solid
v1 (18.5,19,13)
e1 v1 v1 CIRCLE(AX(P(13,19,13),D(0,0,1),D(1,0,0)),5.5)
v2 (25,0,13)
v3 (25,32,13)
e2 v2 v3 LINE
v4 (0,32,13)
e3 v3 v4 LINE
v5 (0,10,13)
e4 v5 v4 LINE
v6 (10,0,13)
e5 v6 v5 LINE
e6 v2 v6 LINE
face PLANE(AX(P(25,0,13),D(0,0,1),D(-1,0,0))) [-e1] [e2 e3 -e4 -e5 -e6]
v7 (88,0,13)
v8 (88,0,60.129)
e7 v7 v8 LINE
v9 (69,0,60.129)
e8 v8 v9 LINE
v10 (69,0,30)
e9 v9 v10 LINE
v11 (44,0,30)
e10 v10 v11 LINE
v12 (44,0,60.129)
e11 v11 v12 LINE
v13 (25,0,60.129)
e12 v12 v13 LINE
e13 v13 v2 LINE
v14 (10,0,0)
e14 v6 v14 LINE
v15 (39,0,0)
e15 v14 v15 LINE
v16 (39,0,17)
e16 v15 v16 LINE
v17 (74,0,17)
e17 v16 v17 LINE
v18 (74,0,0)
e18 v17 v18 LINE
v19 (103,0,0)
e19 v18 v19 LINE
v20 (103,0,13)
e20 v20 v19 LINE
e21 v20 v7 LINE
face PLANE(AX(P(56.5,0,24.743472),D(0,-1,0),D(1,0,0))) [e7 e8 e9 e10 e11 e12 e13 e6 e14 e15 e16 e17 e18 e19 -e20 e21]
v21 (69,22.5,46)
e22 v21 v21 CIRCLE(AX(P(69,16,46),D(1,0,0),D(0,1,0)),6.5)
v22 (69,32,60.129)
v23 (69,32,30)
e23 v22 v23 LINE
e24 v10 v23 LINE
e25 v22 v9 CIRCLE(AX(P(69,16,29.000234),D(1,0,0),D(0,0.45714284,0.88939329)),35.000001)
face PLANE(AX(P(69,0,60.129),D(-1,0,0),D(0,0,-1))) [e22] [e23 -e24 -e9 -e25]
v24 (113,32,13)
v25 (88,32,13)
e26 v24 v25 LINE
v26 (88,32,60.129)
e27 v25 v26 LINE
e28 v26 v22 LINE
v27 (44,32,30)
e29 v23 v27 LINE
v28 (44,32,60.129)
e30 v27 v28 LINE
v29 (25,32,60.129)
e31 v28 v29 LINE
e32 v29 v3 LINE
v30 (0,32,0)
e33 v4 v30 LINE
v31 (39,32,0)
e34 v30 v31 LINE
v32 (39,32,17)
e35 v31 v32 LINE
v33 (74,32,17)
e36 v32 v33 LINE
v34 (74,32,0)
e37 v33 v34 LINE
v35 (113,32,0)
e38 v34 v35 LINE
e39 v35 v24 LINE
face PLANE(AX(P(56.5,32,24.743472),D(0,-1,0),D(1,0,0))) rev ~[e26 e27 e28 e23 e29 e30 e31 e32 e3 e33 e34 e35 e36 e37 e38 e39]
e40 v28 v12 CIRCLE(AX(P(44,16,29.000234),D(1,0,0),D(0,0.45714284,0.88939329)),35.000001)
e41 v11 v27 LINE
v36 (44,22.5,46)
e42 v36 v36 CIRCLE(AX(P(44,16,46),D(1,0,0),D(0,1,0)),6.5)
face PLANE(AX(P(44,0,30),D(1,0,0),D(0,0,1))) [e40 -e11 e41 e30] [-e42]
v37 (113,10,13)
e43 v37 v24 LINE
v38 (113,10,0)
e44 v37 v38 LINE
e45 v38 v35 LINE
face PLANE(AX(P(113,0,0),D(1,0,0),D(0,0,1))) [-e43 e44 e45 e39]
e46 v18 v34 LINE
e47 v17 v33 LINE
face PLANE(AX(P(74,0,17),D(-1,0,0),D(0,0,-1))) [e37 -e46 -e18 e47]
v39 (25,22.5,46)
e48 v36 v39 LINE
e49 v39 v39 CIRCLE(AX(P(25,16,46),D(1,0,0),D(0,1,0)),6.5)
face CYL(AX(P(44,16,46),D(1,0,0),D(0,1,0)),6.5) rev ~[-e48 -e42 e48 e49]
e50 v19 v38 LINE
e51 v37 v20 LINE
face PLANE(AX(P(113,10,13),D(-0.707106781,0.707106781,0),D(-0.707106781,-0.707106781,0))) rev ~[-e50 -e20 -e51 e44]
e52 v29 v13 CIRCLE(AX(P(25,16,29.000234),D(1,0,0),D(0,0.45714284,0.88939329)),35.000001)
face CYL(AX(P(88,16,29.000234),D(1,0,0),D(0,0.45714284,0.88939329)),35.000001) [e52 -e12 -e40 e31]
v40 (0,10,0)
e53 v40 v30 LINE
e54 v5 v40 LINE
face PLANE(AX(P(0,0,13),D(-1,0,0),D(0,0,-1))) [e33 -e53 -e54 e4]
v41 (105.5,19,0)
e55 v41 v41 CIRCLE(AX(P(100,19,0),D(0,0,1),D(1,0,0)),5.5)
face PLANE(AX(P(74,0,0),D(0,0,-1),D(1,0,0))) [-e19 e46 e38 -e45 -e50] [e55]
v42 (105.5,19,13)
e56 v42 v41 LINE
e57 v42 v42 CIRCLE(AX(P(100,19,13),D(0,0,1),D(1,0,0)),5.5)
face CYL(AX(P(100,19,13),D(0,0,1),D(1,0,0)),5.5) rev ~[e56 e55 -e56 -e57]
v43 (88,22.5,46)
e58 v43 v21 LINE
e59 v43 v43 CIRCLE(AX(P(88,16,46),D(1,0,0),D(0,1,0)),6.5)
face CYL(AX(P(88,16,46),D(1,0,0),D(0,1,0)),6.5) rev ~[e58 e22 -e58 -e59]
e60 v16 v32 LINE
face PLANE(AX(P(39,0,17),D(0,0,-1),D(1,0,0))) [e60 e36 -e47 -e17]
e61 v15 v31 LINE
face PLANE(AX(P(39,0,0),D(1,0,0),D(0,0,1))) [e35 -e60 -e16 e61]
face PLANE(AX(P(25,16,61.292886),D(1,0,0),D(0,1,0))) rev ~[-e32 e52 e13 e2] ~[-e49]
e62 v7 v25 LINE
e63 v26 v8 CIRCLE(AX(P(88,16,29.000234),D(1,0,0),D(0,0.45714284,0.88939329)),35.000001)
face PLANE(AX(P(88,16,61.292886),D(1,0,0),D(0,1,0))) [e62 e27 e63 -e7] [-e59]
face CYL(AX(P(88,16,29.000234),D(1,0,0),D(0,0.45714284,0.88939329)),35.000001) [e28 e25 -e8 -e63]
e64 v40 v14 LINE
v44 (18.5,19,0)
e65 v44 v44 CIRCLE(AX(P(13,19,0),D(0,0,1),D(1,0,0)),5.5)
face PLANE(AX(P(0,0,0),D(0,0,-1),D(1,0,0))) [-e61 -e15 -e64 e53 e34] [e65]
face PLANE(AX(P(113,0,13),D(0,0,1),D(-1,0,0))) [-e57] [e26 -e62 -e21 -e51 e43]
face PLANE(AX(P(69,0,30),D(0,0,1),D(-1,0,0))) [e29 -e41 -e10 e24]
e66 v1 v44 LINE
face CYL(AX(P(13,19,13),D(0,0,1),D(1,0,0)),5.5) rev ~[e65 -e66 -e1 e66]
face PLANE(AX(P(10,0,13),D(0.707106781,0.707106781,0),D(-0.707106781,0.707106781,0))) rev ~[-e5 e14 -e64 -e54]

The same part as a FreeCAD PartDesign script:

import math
import FreeCAD as App
import Part
import Sketcher

V = App.Vector
Q = App.Units.Quantity

doc = App.newDocument("Part")
body = doc.addObject("PartDesign::Body", "Body")

# Sketch on XZ plane
sketch1 = doc.addObject("Sketcher::SketchObject", "Sketch")
body.addObject(sketch1)
sketch1.AttachmentSupport = (doc.XZ_Plane, [""])
sketch1.MapMode = "FlatFace"
sketch1.addGeometry(Part.LineSegment(V(44, 60.129, 0), V(25, 60.129, 0)), False)
sketch1.addGeometry(Part.LineSegment(V(25, 60.129, 0), V(25, 13, 0)), False)
sketch1.addGeometry(Part.LineSegment(V(25, 13, 0), V(0, 13, 0)), False)
sketch1.addGeometry(Part.LineSegment(V(0, 13, 0), V(0, 0, 0)), False)
sketch1.addGeometry(Part.LineSegment(V(0, 0, 0), V(39, 0, 0)), False)
sketch1.addGeometry(Part.LineSegment(V(39, 0, 0), V(39, 17, 0)), False)
sketch1.addGeometry(Part.LineSegment(V(39, 17, 0), V(74, 17, 0)), False)
sketch1.addGeometry(Part.LineSegment(V(74, 17, 0), V(74, 0, 0)), False)
sketch1.addGeometry(Part.LineSegment(V(74, 0, 0), V(113, 0, 0)), False)
sketch1.addGeometry(Part.LineSegment(V(113, 0, 0), V(113, 13, 0)), False)
sketch1.addGeometry(Part.LineSegment(V(113, 13, 0), V(88, 13, 0)), False)
sketch1.addGeometry(Part.LineSegment(V(88, 13, 0), V(88, 60.129, 0)), False)
sketch1.addGeometry(Part.LineSegment(V(88, 60.129, 0), V(69, 60.129, 0)), False)
sketch1.addGeometry(Part.LineSegment(V(69, 60.129, 0), V(69, 30, 0)), False)
sketch1.addGeometry(Part.LineSegment(V(69, 30, 0), V(44, 30, 0)), False)
sketch1.addGeometry(Part.LineSegment(V(44, 30, 0), V(44, 60.129, 0)), False)
sketch1.addConstraint(Sketcher.Constraint("Coincident", 0, 2, 1, 1))
sketch1.addConstraint(Sketcher.Constraint("Coincident", 1, 2, 2, 1))
sketch1.addConstraint(Sketcher.Constraint("Coincident", 2, 2, 3, 1))
sketch1.addConstraint(Sketcher.Constraint("Coincident", 3, 2, 4, 1))
sketch1.addConstraint(Sketcher.Constraint("Coincident", 4, 2, 5, 1))
sketch1.addConstraint(Sketcher.Constraint("Coincident", 5, 2, 6, 1))
sketch1.addConstraint(Sketcher.Constraint("Coincident", 6, 2, 7, 1))
sketch1.addConstraint(Sketcher.Constraint("Coincident", 7, 2, 8, 1))
sketch1.addConstraint(Sketcher.Constraint("Coincident", 8, 2, 9, 1))
sketch1.addConstraint(Sketcher.Constraint("Coincident", 9, 2, 10, 1))
sketch1.addConstraint(Sketcher.Constraint("Coincident", 10, 2, 11, 1))
sketch1.addConstraint(Sketcher.Constraint("Coincident", 11, 2, 12, 1))
sketch1.addConstraint(Sketcher.Constraint("Coincident", 12, 2, 13, 1))
sketch1.addConstraint(Sketcher.Constraint("Coincident", 13, 2, 14, 1))
sketch1.addConstraint(Sketcher.Constraint("Coincident", 14, 2, 15, 1))
sketch1.addConstraint(Sketcher.Constraint("Coincident", 15, 2, 0, 1))
sketch1.addConstraint(Sketcher.Constraint("Horizontal", 0))
sketch1.addConstraint(Sketcher.Constraint("Vertical", 1))
sketch1.addConstraint(Sketcher.Constraint("Horizontal", 2))
sketch1.addConstraint(Sketcher.Constraint("Vertical", 3))
sketch1.addConstraint(Sketcher.Constraint("Horizontal", 4))
sketch1.addConstraint(Sketcher.Constraint("Vertical", 5))
sketch1.addConstraint(Sketcher.Constraint("Horizontal", 6))
sketch1.addConstraint(Sketcher.Constraint("Vertical", 7))
sketch1.addConstraint(Sketcher.Constraint("Horizontal", 8))
sketch1.addConstraint(Sketcher.Constraint("Vertical", 9))
sketch1.addConstraint(Sketcher.Constraint("Horizontal", 10))
sketch1.addConstraint(Sketcher.Constraint("Vertical", 11))
sketch1.addConstraint(Sketcher.Constraint("Horizontal", 12))
sketch1.addConstraint(Sketcher.Constraint("Vertical", 13))
sketch1.addConstraint(Sketcher.Constraint("Horizontal", 14))
sketch1.addConstraint(Sketcher.Constraint("Vertical", 15))
sketch1.addConstraint(Sketcher.Constraint("Coincident", 3, 2, -1, 1))
sketch1.addConstraint(Sketcher.Constraint("PointOnObject", 7, 2, -1))
sketch1.addConstraint(Sketcher.Constraint("Horizontal", 2, 2, 9, 2))
sketch1.addConstraint(Sketcher.Constraint("Horizontal", 0, 2, 11, 2))
sketch1.addConstraint(Sketcher.Constraint("Equal", 4, 8))
sketch1.addConstraint(Sketcher.Constraint("Equal", 2, 10))
sketch1.addConstraint(Sketcher.Constraint("Equal", 0, 12))
sketch1.addConstraint(Sketcher.Constraint("Equal", 10, 14))
sketch1.addConstraint(Sketcher.Constraint("DistanceX", 0, 2, 0, 1, Q("19 mm")))
sketch1.addConstraint(Sketcher.Constraint("DistanceX", 2, 2, 2, 1, Q("25 mm")))
sketch1.addConstraint(Sketcher.Constraint("DistanceX", 4, 1, 4, 2, Q("39 mm")))
sketch1.addConstraint(Sketcher.Constraint("DistanceY", 3, 2, 3, 1, Q("13 mm")))
sketch1.addConstraint(Sketcher.Constraint("DistanceY", 5, 1, 5, 2, Q("17 mm")))
sketch1.addConstraint(Sketcher.Constraint("DistanceY", -1, 1, 13, 2, Q("30 mm")))
sketch1.addConstraint(Sketcher.Constraint("DistanceY", 1, 2, 1, 1, Q("47.129 mm")))
pad1 = doc.addObject("PartDesign::Pad", "Pad")
body.addObject(pad1)
pad1.Profile = sketch1
pad1.Length = 32
pad1.Reversed = True

# Sketch on XY plane
sketch2 = doc.addObject("Sketcher::SketchObject", "Sketch001")
body.addObject(sketch2)
sketch2.AttachmentSupport = (doc.XY_Plane, [""])
sketch2.MapMode = "FlatFace"
sketch2.AttachmentOffset = App.Placement(V(0, 0, 13), App.Rotation())
sketch2.addGeometry(Part.Circle(V(100, 19, 0), V(0, 0, 1), 5.5), False)
sketch2.addConstraint(Sketcher.Constraint("Diameter", 0, Q("11 mm")))
sketch2.addConstraint(Sketcher.Constraint("DistanceX", -1, 1, 0, 3, Q("100 mm")))
sketch2.addConstraint(Sketcher.Constraint("DistanceY", -1, 1, 0, 3, Q("19 mm")))
pocket1 = doc.addObject("PartDesign::Pocket", "Pocket")
body.addObject(pocket1)
pocket1.Profile = sketch2
pocket1.Length = 25

# Sketch on XY plane
sketch3 = doc.addObject("Sketcher::SketchObject", "Sketch002")
body.addObject(sketch3)
sketch3.AttachmentSupport = (doc.XY_Plane, [""])
sketch3.MapMode = "FlatFace"
sketch3.AttachmentOffset = App.Placement(V(0, 0, 13), App.Rotation())
sketch3.addGeometry(Part.LineSegment(V(113, 10, 0), V(103, 0, 0)), False)
sketch3.addGeometry(Part.LineSegment(V(103, 0, 0), V(113, 0, 0)), False)
sketch3.addGeometry(Part.LineSegment(V(113, 0, 0), V(113, 10, 0)), False)
sketch3.addConstraint(Sketcher.Constraint("Coincident", 0, 2, 1, 1))
sketch3.addConstraint(Sketcher.Constraint("Coincident", 1, 2, 2, 1))
sketch3.addConstraint(Sketcher.Constraint("Coincident", 2, 2, 0, 1))
sketch3.addConstraint(Sketcher.Constraint("Horizontal", 1))
sketch3.addConstraint(Sketcher.Constraint("Vertical", 2))
sketch3.addConstraint(Sketcher.Constraint("PointOnObject", 0, 2, -1))
sketch3.addConstraint(Sketcher.Constraint("Equal", 1, 2))
sketch3.addConstraint(Sketcher.Constraint("DistanceX", 1, 1, 1, 2, Q("10 mm")))
sketch3.addConstraint(Sketcher.Constraint("DistanceX", -1, 1, 0, 2, Q("103 mm")))
pocket2 = doc.addObject("PartDesign::Pocket", "Pocket001")
body.addObject(pocket2)
pocket2.Profile = sketch3
pocket2.Length = 25

# Sketch on YZ plane
sketch4 = doc.addObject("Sketcher::SketchObject", "Sketch003")
body.addObject(sketch4)
sketch4.AttachmentSupport = (doc.YZ_Plane, [""])
sketch4.MapMode = "FlatFace"
sketch4.AttachmentOffset = App.Placement(V(0, 0, 88), App.Rotation())
sketch4.addGeometry(Part.Circle(V(16, 46, 0), V(0, 0, 1), 6.5), False)
sketch4.addConstraint(Sketcher.Constraint("Diameter", 0, Q("13 mm")))
sketch4.addConstraint(Sketcher.Constraint("DistanceX", -1, 1, 0, 3, Q("16 mm")))
sketch4.addConstraint(Sketcher.Constraint("DistanceY", -1, 1, 0, 3, Q("46 mm")))
pocket3 = doc.addObject("PartDesign::Pocket", "Pocket002")
body.addObject(pocket3)
pocket3.Profile = sketch4
pocket3.Length = 25

# Sketch on YZ plane
sketch5 = doc.addObject("Sketcher::SketchObject", "Sketch004")
body.addObject(sketch5)
sketch5.AttachmentSupport = (doc.YZ_Plane, [""])
sketch5.MapMode = "FlatFace"
sketch5.AttachmentOffset = App.Placement(V(0, 0, 44), App.Rotation())
sketch5.addGeometry(Part.Circle(V(16, 46, 0), V(0, 0, 1), 6.5), False)
sketch5.addConstraint(Sketcher.Constraint("Diameter", 0, Q("13 mm")))
sketch5.addConstraint(Sketcher.Constraint("DistanceX", -1, 1, 0, 3, Q("16 mm")))
sketch5.addConstraint(Sketcher.Constraint("DistanceY", -1, 1, 0, 3, Q("46 mm")))
pocket4 = doc.addObject("PartDesign::Pocket", "Pocket003")
body.addObject(pocket4)
pocket4.Profile = sketch5
pocket4.Length = 25

# Sketch on XY plane
sketch6 = doc.addObject("Sketcher::SketchObject", "Sketch005")
body.addObject(sketch6)
sketch6.AttachmentSupport = (doc.XY_Plane, [""])
sketch6.MapMode = "FlatFace"
sketch6.AttachmentOffset = App.Placement(V(0, 0, 13), App.Rotation())
sketch6.addGeometry(Part.Circle(V(13, 19, 0), V(0, 0, 1), 5.5), False)
sketch6.addConstraint(Sketcher.Constraint("Diameter", 0, Q("11 mm")))
sketch6.addConstraint(Sketcher.Constraint("DistanceX", -1, 1, 0, 3, Q("13 mm")))
sketch6.addConstraint(Sketcher.Constraint("DistanceY", -1, 1, 0, 3, Q("19 mm")))
pocket5 = doc.addObject("PartDesign::Pocket", "Pocket004")
body.addObject(pocket5)
pocket5.Profile = sketch6
pocket5.Length = 25

# Sketch on XY plane
sketch7 = doc.addObject("Sketcher::SketchObject", "Sketch006")
body.addObject(sketch7)
sketch7.AttachmentSupport = (doc.XY_Plane, [""])
sketch7.MapMode = "FlatFace"
sketch7.AttachmentOffset = App.Placement(V(0, 0, 13), App.Rotation())
sketch7.addGeometry(Part.LineSegment(V(10, 0, 0), V(0, 10, 0)), False)
sketch7.addGeometry(Part.LineSegment(V(0, 10, 0), V(0, 0, 0)), False)
sketch7.addGeometry(Part.LineSegment(V(0, 0, 0), V(10, 0, 0)), False)
sketch7.addConstraint(Sketcher.Constraint("Coincident", 0, 2, 1, 1))
sketch7.addConstraint(Sketcher.Constraint("Coincident", 1, 2, 2, 1))
sketch7.addConstraint(Sketcher.Constraint("Coincident", 2, 2, 0, 1))
sketch7.addConstraint(Sketcher.Constraint("Vertical", 1))
sketch7.addConstraint(Sketcher.Constraint("Horizontal", 2))
sketch7.addConstraint(Sketcher.Constraint("Coincident", 1, 2, -1, 1))
sketch7.addConstraint(Sketcher.Constraint("Equal", 2, 1))
sketch7.addConstraint(Sketcher.Constraint("DistanceX", 2, 1, 2, 2, Q("10 mm")))
pocket6 = doc.addObject("PartDesign::Pocket", "Pocket005")
body.addObject(pocket6)
pocket6.Profile = sketch7
pocket6.Length = 25

# Sketch on YZ plane
sketch8 = doc.addObject("Sketcher::SketchObject", "Sketch007")
body.addObject(sketch8)
sketch8.AttachmentSupport = (doc.YZ_Plane, [""])
sketch8.MapMode = "FlatFace"
sketch8.AttachmentOffset = App.Placement(V(0, 0, 88), App.Rotation())
sketch8.addGeometry(Part.LineSegment(V(0, 60.129, 0), V(32, 60.129, 0)), False)
sketch8.addGeometry(Part.ArcOfCircle(Part.Circle(V(16, 29.000234, 0), V(0, 0, 1), 35.000001), math.radians(62.797107), math.radians(117.202893)), False)
sketch8.addConstraint(Sketcher.Constraint("Coincident", 0, 1, 1, 2))
sketch8.addConstraint(Sketcher.Constraint("Coincident", 1, 1, 0, 2))
sketch8.addConstraint(Sketcher.Constraint("Horizontal", 0))
sketch8.addConstraint(Sketcher.Constraint("PointOnObject", 0, 1, -2))
sketch8.addConstraint(Sketcher.Constraint("Radius", 1, Q("35.000001 mm")))
sketch8.addConstraint(Sketcher.Constraint("DistanceX", 0, 1, 0, 2, Q("32 mm")))
sketch8.addConstraint(Sketcher.Constraint("DistanceY", -1, 1, 0, 1, Q("60.129 mm")))
pad2 = doc.addObject("PartDesign::Pad", "Pad001")
body.addObject(pad2)
pad2.Profile = sketch8
pad2.Length = 63
pad2.Reversed = True

# Sketch on YZ plane
sketch9 = doc.addObject("Sketcher::SketchObject", "Sketch008")
body.addObject(sketch9)
sketch9.AttachmentSupport = (doc.YZ_Plane, [""])
sketch9.MapMode = "FlatFace"
sketch9.AttachmentOffset = App.Placement(V(0, 0, 44), App.Rotation())
sketch9.addGeometry(Part.LineSegment(V(0, 60.129, 0), V(32, 60.129, 0)), False)
sketch9.addGeometry(Part.ArcOfCircle(Part.Circle(V(16, 29.000234, 0), V(0, 0, 1), 35.000001), math.radians(62.797107), math.radians(117.202893)), False)
sketch9.addConstraint(Sketcher.Constraint("Coincident", 0, 1, 1, 2))
sketch9.addConstraint(Sketcher.Constraint("Coincident", 1, 1, 0, 2))
sketch9.addConstraint(Sketcher.Constraint("Horizontal", 0))
sketch9.addConstraint(Sketcher.Constraint("PointOnObject", 0, 1, -2))
sketch9.addConstraint(Sketcher.Constraint("Radius", 1, Q("35.000001 mm")))
sketch9.addConstraint(Sketcher.Constraint("DistanceX", 0, 1, 0, 2, Q("32 mm")))
sketch9.addConstraint(Sketcher.Constraint("DistanceY", -1, 1, 0, 1, Q("60.129 mm")))
pocket7 = doc.addObject("PartDesign::Pocket", "Pocket006")
body.addObject(pocket7)
pocket7.Profile = sketch9
pocket7.Length = 25
pocket7.Reversed = True

doc.recompute()
